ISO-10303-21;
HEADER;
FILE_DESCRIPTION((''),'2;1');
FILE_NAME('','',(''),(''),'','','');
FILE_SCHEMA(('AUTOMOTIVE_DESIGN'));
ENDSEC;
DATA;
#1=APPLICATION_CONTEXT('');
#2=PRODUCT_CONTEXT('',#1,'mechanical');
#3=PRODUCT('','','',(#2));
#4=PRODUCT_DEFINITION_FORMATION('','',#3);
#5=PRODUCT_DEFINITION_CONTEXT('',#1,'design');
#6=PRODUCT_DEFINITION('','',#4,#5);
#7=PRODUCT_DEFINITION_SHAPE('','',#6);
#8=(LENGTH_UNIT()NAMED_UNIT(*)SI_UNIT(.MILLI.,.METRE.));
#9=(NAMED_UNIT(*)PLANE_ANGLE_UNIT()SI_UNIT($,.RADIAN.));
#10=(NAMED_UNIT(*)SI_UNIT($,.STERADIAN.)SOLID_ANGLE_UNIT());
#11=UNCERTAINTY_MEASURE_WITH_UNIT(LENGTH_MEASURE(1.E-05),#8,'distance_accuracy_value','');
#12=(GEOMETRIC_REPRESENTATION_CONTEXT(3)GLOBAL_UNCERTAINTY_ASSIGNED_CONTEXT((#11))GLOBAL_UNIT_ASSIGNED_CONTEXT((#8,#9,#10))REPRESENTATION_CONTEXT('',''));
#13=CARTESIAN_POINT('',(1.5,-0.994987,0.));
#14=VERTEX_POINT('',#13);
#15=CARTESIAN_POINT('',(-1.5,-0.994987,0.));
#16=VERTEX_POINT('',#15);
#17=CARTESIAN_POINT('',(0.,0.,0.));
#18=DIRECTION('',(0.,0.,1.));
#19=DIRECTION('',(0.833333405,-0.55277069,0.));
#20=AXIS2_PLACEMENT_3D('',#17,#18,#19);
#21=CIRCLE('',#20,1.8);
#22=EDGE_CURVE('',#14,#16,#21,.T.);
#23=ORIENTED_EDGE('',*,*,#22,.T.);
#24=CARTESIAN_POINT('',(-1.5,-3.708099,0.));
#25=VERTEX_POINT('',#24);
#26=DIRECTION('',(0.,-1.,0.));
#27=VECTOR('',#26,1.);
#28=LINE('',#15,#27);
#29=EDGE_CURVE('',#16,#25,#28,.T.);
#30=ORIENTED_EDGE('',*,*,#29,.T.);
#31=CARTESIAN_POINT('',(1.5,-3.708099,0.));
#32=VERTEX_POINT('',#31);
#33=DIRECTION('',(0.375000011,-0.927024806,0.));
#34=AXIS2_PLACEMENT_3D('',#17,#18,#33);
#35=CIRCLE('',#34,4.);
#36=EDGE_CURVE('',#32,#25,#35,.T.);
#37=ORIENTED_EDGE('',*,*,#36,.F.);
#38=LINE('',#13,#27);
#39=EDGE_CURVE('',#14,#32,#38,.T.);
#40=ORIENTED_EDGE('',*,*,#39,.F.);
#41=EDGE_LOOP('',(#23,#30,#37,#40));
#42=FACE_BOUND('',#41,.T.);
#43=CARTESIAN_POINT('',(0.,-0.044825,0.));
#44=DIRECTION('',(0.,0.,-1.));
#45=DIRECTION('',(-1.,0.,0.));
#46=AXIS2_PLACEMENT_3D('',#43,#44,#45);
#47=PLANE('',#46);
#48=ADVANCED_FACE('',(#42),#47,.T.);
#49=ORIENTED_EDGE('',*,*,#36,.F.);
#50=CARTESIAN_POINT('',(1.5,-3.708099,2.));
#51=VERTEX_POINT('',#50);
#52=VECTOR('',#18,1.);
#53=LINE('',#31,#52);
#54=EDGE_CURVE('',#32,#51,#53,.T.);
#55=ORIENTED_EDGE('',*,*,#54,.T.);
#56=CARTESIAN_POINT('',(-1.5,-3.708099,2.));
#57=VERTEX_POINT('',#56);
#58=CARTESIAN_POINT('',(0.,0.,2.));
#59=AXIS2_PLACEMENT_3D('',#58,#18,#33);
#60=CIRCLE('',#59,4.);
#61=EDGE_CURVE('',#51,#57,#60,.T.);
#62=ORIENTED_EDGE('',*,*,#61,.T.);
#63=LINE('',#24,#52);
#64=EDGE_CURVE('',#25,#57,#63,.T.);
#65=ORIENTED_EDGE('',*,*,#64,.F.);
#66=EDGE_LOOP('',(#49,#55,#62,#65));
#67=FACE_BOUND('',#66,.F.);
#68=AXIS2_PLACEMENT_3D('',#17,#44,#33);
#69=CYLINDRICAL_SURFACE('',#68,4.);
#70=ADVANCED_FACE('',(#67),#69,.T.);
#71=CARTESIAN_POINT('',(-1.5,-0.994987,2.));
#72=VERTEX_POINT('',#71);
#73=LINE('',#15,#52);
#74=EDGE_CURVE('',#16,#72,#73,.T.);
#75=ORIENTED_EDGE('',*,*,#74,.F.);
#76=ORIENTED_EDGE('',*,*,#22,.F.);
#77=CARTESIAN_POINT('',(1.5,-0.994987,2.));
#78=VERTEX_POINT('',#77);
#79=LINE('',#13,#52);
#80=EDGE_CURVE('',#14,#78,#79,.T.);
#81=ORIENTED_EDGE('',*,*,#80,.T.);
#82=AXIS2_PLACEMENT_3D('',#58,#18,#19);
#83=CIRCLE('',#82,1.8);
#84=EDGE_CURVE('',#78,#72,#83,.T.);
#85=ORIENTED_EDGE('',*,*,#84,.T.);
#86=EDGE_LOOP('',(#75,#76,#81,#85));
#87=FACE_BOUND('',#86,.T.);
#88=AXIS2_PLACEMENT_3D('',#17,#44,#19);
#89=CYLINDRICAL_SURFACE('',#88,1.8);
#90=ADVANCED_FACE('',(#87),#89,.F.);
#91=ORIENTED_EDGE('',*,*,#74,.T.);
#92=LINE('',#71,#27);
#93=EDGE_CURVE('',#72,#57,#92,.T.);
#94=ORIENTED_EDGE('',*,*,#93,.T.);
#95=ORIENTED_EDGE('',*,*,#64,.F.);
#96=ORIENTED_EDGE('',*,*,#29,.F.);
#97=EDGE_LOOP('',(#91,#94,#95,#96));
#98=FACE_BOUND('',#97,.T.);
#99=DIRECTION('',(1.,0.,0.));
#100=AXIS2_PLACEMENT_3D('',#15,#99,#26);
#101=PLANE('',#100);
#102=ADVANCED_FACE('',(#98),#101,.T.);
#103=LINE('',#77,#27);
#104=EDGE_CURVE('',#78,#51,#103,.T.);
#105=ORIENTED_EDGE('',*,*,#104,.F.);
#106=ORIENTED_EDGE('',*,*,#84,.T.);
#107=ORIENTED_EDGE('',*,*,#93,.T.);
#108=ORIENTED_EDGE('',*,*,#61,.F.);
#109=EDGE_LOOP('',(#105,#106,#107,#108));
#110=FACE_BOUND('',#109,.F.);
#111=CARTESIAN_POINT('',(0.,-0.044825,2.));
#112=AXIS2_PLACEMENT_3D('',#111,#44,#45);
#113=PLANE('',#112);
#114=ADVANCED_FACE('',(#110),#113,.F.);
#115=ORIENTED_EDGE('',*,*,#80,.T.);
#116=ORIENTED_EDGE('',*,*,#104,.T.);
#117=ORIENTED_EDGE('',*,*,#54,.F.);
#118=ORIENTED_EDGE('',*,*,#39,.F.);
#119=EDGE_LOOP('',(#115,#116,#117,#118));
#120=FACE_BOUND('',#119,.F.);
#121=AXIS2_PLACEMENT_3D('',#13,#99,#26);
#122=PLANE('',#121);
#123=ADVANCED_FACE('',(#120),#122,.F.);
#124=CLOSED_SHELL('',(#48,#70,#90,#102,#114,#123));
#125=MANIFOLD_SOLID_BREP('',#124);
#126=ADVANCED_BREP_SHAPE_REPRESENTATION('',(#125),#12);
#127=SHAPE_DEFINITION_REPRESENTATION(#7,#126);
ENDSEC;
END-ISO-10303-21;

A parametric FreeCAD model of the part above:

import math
import FreeCAD as App
import Part
import Sketcher
from FreeCAD import Vector
Q = App.Units.Quantity

doc = App.newDocument("Part")
body = doc.addObject("PartDesign::Body", "Body")

# Sketch on XY plane
sketch1 = body.newObject("Sketcher::SketchObject", "Sketch")
sketch1.AttachmentSupport = (doc.getObject("XY_Plane"), [""])
sketch1.MapMode = "FlatFace"
sketch1.addGeometry([
    Part.ArcOfCircle(Part.Circle(Vector(0, 0, 0), Vector(0, 0, 1), 1.8), math.radians(-34), math.radians(214)),
    Part.LineSegment(Vector(1.5, -1, 0), Vector(1.5, -3.7, 0)),
    Part.ArcOfCircle(Part.Circle(Vector(0, 0, 0), Vector(0, 0, 1), 4), math.radians(-68), math.radians(248)),
    Part.LineSegment(Vector(-1.5, -3.7, 0), Vector(-1.5, -1, 0)),
], False)
sketch1.addConstraint([
    Sketcher.Constraint("Coincident", 0, 1, 1, 1),
    Sketcher.Constraint("Coincident", 1, 2, 2, 1),
    Sketcher.Constraint("Coincident", 2, 2, 3, 1),
    Sketcher.Constraint("Coincident", 3, 2, 0, 2),
    Sketcher.Constraint("Vertical", 1),
    Sketcher.Constraint("Vertical", 3),
    Sketcher.Constraint("Coincident", 0, 3, -1, 1),
    Sketcher.Constraint("Coincident", 2, 3, -1, 1),
    Sketcher.Constraint("Horizontal", 1, 2, 2, 2),
    Sketcher.Constraint("Radius", 2, Q("4 mm")),
    Sketcher.Constraint("Radius", 0, Q("1.8 mm")),
    Sketcher.Constraint("DistanceX", 2, 2, 1, 2, Q("3 mm")),
])
pad1 = body.newObject("PartDesign::Pad", "Pad")
pad1.Profile = sketch1
pad1.Length = 2

doc.recompute()
